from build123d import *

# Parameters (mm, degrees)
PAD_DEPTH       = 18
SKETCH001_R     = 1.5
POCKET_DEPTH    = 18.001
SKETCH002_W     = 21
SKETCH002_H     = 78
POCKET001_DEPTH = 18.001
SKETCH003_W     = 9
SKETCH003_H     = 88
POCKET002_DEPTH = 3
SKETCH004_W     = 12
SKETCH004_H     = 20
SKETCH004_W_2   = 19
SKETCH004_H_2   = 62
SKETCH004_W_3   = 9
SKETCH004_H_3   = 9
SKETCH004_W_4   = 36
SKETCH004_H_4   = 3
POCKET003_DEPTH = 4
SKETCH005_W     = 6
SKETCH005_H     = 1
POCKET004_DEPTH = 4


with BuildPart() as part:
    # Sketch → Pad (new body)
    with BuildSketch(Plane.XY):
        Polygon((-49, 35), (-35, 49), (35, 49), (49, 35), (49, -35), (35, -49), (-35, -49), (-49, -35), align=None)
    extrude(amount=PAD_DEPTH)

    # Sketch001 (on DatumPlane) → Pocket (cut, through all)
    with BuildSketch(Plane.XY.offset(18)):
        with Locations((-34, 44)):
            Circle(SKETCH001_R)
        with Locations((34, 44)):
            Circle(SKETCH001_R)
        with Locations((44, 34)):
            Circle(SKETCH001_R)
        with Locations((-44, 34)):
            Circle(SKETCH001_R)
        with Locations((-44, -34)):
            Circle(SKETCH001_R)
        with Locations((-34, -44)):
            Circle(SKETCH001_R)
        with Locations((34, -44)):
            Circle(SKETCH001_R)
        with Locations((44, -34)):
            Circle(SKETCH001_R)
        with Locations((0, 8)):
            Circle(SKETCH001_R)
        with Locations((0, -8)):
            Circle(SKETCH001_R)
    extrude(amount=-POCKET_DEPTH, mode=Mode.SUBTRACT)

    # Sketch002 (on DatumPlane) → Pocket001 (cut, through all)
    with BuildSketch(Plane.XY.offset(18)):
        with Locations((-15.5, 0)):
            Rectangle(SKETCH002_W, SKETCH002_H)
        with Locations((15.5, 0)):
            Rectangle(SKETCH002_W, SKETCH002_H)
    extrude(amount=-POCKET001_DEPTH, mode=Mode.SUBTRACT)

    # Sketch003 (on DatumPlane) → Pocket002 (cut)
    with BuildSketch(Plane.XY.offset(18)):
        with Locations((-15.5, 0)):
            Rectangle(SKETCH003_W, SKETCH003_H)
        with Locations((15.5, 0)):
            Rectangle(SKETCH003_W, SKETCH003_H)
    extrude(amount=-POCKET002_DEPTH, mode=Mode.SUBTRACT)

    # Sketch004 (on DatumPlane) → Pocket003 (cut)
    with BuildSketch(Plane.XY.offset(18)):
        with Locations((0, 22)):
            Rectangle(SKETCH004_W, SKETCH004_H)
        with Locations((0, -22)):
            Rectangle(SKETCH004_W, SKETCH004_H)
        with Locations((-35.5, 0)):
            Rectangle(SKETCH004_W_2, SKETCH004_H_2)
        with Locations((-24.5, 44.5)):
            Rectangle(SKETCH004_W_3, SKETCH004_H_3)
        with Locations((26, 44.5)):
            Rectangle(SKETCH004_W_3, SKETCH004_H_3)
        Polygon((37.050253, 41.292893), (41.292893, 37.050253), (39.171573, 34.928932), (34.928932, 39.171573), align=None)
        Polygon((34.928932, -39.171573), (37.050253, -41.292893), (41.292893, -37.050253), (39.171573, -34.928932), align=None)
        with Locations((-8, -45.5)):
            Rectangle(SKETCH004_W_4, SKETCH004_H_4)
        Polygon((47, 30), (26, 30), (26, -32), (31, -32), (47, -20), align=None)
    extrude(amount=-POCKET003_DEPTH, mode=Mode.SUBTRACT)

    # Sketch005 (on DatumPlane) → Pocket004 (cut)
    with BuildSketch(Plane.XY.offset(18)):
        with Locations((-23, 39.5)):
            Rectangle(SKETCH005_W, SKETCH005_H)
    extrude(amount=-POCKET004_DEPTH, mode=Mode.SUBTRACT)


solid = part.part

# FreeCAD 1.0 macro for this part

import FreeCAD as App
import Part
import Sketcher

V = App.Vector
Q = App.Units.Quantity


def add_polygon(sketch, points):
    """Adds a closed chain of lines whose ends are joined by coincident constraints."""
    first, n = sketch.GeometryCount, len(points)
    for a, b in zip(points, points[1:] + points[:1]):
        sketch.addGeometry(Part.LineSegment(App.Vector(*a, 0), App.Vector(*b, 0)), False)
    for i in range(n):
        sketch.addConstraint(Sketcher.Constraint("Coincident", first + i, 2, first + (i + 1) % n, 1))

doc = App.newDocument("Part")
params = doc.addObject("Spreadsheet::Sheet", "Params")
for row, (alias, value) in enumerate([
    ("sketch1_width", "70 mm"),
    ("pad1_length", "18 mm"),
    ("sketch2_diameter", "3 mm"),
    ("sketch3_width", "21 mm"),
    ("sketch3_height", "78 mm"),
    ("sketch4_width", "9 mm"),
    ("sketch4_height", "88 mm"),
    ("pocket3_length", "3 mm"),
    ("sketch5_width", "12 mm"),
    ("sketch5_width2", "19 mm"),
    ("sketch5_width3", "9 mm"),
    ("sketch5_width4", "36 mm"),
    ("sketch5_width5", "21 mm"),
    ("pocket4_length", "4 mm"),
    ("sketch6_width", "6 mm"),
    ("sketch6_height", "1 mm"),
    ("pocket5_length", "4 mm"),
], start=1):
    params.set(f"A{row}", alias)
    params.set(f"B{row}", "=" + value)
    params.setAlias(f"B{row}", alias)

body = doc.addObject("PartDesign::Body", "Body")

# Sketch on XY plane
sketch1 = doc.addObject("Sketcher::SketchObject", "Sketch")
body.addObject(sketch1)
sketch1.AttachmentSupport = (doc.XY_Plane, [""])
sketch1.MapMode = "FlatFace"
add_polygon(sketch1, [(-35, 49), (-49, 35), (-49, -35), (-35, -49), (35, -49), (49, -35), (49, 35), (35, 49)])  # lines 0-7
sketch1.addConstraint([
    Sketcher.Constraint("Vertical", 1),
    Sketcher.Constraint("Horizontal", 3),
    Sketcher.Constraint("Vertical", 5),
    Sketcher.Constraint("Horizontal", 7),
    Sketcher.Constraint("Symmetric", 0, 2, 4, 2, -1, 1),
    Sketcher.Constraint("Symmetric", 2, 2, 6, 2, -1, 1),
    Sketcher.Constraint("Perpendicular", 0, 2),
    Sketcher.Constraint("Perpendicular", 2, 4),
    Sketcher.Constraint("Perpendicular", 4, 6),
    Sketcher.Constraint("Horizontal", 1, 2, 4, 2),
    Sketcher.Constraint("Vertical", 3, 2, 6, 2),
    Sketcher.Constraint("Equal", 7, 1),
    Sketcher.Constraint("DistanceX", 3, 1, 3, 2, Q("70 mm")),
    Sketcher.Constraint("DistanceX", 0, 2, -1, 1, Q("49 mm")),
])
sketch1.setExpression("Constraints[20]", "Params.sketch1_width")
pad1 = doc.addObject("PartDesign::Pad", "Pad")
body.addObject(pad1)
pad1.Profile = sketch1
pad1.setExpression("Length", "Params.pad1_length")

# Sketch on XY plane
sketch2 = doc.addObject("Sketcher::SketchObject", "Sketch001")
body.addObject(sketch2)
sketch2.AttachmentSupport = (doc.XY_Plane, [""])
sketch2.MapMode = "FlatFace"
sketch2.AttachmentOffset = App.Placement(V(0, 0, 18), App.Rotation())
sketch2.addGeometry([
    Part.Circle(V(-34, 44, 0), V(0, 0, 1), 1.5),  # 0
    Part.Circle(V(34, 44, 0), V(0, 0, 1), 1.5),  # 1
    Part.Circle(V(44, 34, 0), V(0, 0, 1), 1.5),  # 2
    Part.Circle(V(-44, 34, 0), V(0, 0, 1), 1.5),  # 3
    Part.Circle(V(-44, -34, 0), V(0, 0, 1), 1.5),  # 4
    Part.Circle(V(-34, -44, 0), V(0, 0, 1), 1.5),  # 5
    Part.Circle(V(34, -44, 0), V(0, 0, 1), 1.5),  # 6
    Part.Circle(V(44, -34, 0), V(0, 0, 1), 1.5),  # 7
    Part.Circle(V(0, 8, 0), V(0, 0, 1), 1.5),  # 8
    Part.Circle(V(0, -8, 0), V(0, 0, 1), 1.5),  # 9
], False)
sketch2.addConstraint([
    Sketcher.Constraint("Equal", 0, 1),
    Sketcher.Constraint("Equal", 1, 2),
    Sketcher.Constraint("Equal", 2, 3),
    Sketcher.Constraint("Equal", 3, 4),
    Sketcher.Constraint("Equal", 4, 5),
    Sketcher.Constraint("Equal", 5, 6),
    Sketcher.Constraint("Equal", 6, 7),
    Sketcher.Constraint("Equal", 7, 8),
    Sketcher.Constraint("Equal", 8, 9),
    Sketcher.Constraint("Symmetric", 2, 3, 4, 3, -1, 1),
    Sketcher.Constraint("Symmetric", 1, 3, 5, 3, -1, 1),
    Sketcher.Constraint("Symmetric", 0, 3, 6, 3, -1, 1),
    Sketcher.Constraint("Symmetric", 3, 3, 7, 3, -1, 1),
    Sketcher.Constraint("Symmetric", 8, 3, 9, 3, -1, 1),
    Sketcher.Constraint("Symmetric", 0, 3, 1, 3, -2),
    Sketcher.Constraint("Symmetric", 2, 3, 3, 3, -2),
    Sketcher.Constraint("PointOnObject", 8, 3, -2),
    Sketcher.Constraint("Diameter", 0, Q("3 mm")),
    Sketcher.Constraint("DistanceX", 0, 3, -1, 1, Q("34 mm")),
    Sketcher.Constraint("DistanceY", -1, 1, 0, 3, Q("44 mm")),
    Sketcher.Constraint("DistanceX", -1, 1, 2, 3, Q("44 mm")),
    Sketcher.Constraint("DistanceY", -1, 1, 2, 3, Q("34 mm")),
    Sketcher.Constraint("DistanceY", -1, 1, 8, 3, Q("8 mm")),
])
sketch2.setExpression("Constraints[17]", "Params.sketch2_diameter")
pocket1 = doc.addObject("PartDesign::Pocket", "Pocket")
body.addObject(pocket1)
pocket1.Profile = sketch2
pocket1.Type = "ThroughAll"

# Sketch on XY plane
sketch3 = doc.addObject("Sketcher::SketchObject", "Sketch002")
body.addObject(sketch3)
sketch3.AttachmentSupport = (doc.XY_Plane, [""])
sketch3.MapMode = "FlatFace"
sketch3.AttachmentOffset = App.Placement(V(0, 0, 18), App.Rotation())
add_polygon(sketch3, [(-26, 39), (-26, -39), (-5, -39), (-5, 39)])  # lines 0-3
add_polygon(sketch3, [(5, 39), (5, -39), (26, -39), (26, 39)])  # lines 4-7
sketch3.addConstraint([
    Sketcher.Constraint("Vertical", 0),
    Sketcher.Constraint("Horizontal", 1),
    Sketcher.Constraint("Vertical", 2),
    Sketcher.Constraint("Horizontal", 3),
    Sketcher.Constraint("Vertical", 4),
    Sketcher.Constraint("Horizontal", 5),
    Sketcher.Constraint("Vertical", 6),
    Sketcher.Constraint("Horizontal", 7),
    Sketcher.Constraint("Symmetric", 2, 2, 4, 2, -1, 1),
    Sketcher.Constraint("Symmetric", 0, 2, 6, 2, -1, 1),
    Sketcher.Constraint("Horizontal", 1, 2, 4, 2),
    Sketcher.Constraint("DistanceX", 1, 1, 1, 2, Q("21 mm")),
    Sketcher.Constraint("DistanceY", 0, 2, 0, 1, Q("78 mm")),
    Sketcher.Constraint("DistanceX", 0, 2, -1, 1, Q("26 mm")),
])
sketch3.setExpression("Constraints[19]", "Params.sketch3_width")
sketch3.setExpression("Constraints[20]", "Params.sketch3_height")
pocket2 = doc.addObject("PartDesign::Pocket", "Pocket001")
body.addObject(pocket2)
pocket2.Profile = sketch3
pocket2.Type = "ThroughAll"

# Sketch on XY plane
sketch4 = doc.addObject("Sketcher::SketchObject", "Sketch003")
body.addObject(sketch4)
sketch4.AttachmentSupport = (doc.XY_Plane, [""])
sketch4.MapMode = "FlatFace"
sketch4.AttachmentOffset = App.Placement(V(0, 0, 18), App.Rotation())
add_polygon(sketch4, [(-20, 44), (-20, -44), (-11, -44), (-11, 44)])  # lines 0-3
add_polygon(sketch4, [(11, 44), (11, -44), (20, -44), (20, 44)])  # lines 4-7
sketch4.addConstraint([
    Sketcher.Constraint("Vertical", 0),
    Sketcher.Constraint("Horizontal", 1),
    Sketcher.Constraint("Vertical", 2),
    Sketcher.Constraint("Horizontal", 3),
    Sketcher.Constraint("Vertical", 4),
    Sketcher.Constraint("Horizontal", 5),
    Sketcher.Constraint("Vertical", 6),
    Sketcher.Constraint("Horizontal", 7),
    Sketcher.Constraint("Symmetric", 2, 2, 4, 2, -1, 1),
    Sketcher.Constraint("Symmetric", 0, 2, 6, 2, -1, 1),
    Sketcher.Constraint("Horizontal", 1, 2, 4, 2),
    Sketcher.Constraint("DistanceX", 1, 1, 1, 2, Q("9 mm")),
    Sketcher.Constraint("DistanceY", 0, 2, 0, 1, Q("88 mm")),
    Sketcher.Constraint("DistanceX", 0, 2, -1, 1, Q("20 mm")),
])
sketch4.setExpression("Constraints[19]", "Params.sketch4_width")
sketch4.setExpression("Constraints[20]", "Params.sketch4_height")
pocket3 = doc.addObject("PartDesign::Pocket", "Pocket002")
body.addObject(pocket3)
pocket3.Profile = sketch4
pocket3.setExpression("Length", "Params.pocket3_length")

# Sketch on XY plane
sketch5 = doc.addObject("Sketcher::SketchObject", "Sketch004")
body.addObject(sketch5)
sketch5.AttachmentSupport = (doc.XY_Plane, [""])
sketch5.MapMode = "FlatFace"
sketch5.AttachmentOffset = App.Placement(V(0, 0, 18), App.Rotation())
add_polygon(sketch5, [(-6, 32), (-6, 12), (6, 12), (6, 32)])  # lines 0-3
add_polygon(sketch5, [(-6, -12), (-6, -32), (6, -32), (6, -12)])  # lines 4-7
add_polygon(sketch5, [(-45, 31), (-45, -31), (-26, -31), (-26, 31)])  # lines 8-11
add_polygon(sketch5, [(-29, 49), (-29, 40), (-20, 40), (-20, 49)])  # lines 12-15
add_polygon(sketch5, [(21.5, 49), (21.5, 40), (30.5, 40), (30.5, 49)])  # lines 16-19
add_polygon(sketch5, [(41.292893, 37.050253), (37.050253, 41.292893), (34.928932, 39.171573), (39.171573, 34.928932)])  # lines 20-23
add_polygon(sketch5, [(34.928932, -39.171573), (37.050253, -41.292893), (41.292893, -37.050253), (39.171573, -34.928932)])  # lines 24-27
add_polygon(sketch5, [(-26, -44), (-26, -47), (10, -47), (10, -44)])  # lines 28-31
add_polygon(sketch5, [(47, 30), (26, 30), (26, -32), (31, -32), (47, -20)])  # lines 32-36
sketch5.addConstraint([
    Sketcher.Constraint("Vertical", 0),
    Sketcher.Constraint("Horizontal", 1),
    Sketcher.Constraint("Vertical", 2),
    Sketcher.Constraint("Horizontal", 3),
    Sketcher.Constraint("Vertical", 4),
    Sketcher.Constraint("Horizontal", 5),
    Sketcher.Constraint("Vertical", 6),
    Sketcher.Constraint("Horizontal", 7),
    Sketcher.Constraint("Vertical", 8),
    Sketcher.Constraint("Horizontal", 9),
    Sketcher.Constraint("Vertical", 10),
    Sketcher.Constraint("Horizontal", 11),
    Sketcher.Constraint("Vertical", 12),
    Sketcher.Constraint("Horizontal", 13),
    Sketcher.Constraint("Vertical", 14),
    Sketcher.Constraint("Horizontal", 15),
    Sketcher.Constraint("Vertical", 16),
    Sketcher.Constraint("Horizontal", 17),
    Sketcher.Constraint("Vertical", 18),
    Sketcher.Constraint("Horizontal", 19),
    Sketcher.Constraint("Vertical", 28),
    Sketcher.Constraint("Horizontal", 29),
    Sketcher.Constraint("Vertical", 30),
    Sketcher.Constraint("Horizontal", 31),
    Sketcher.Constraint("Horizontal", 32),
    Sketcher.Constraint("Vertical", 33),
    Sketcher.Constraint("Horizontal", 34),
    Sketcher.Constraint("Vertical", 36),
    Sketcher.Constraint("Symmetric", 2, 2, 4, 2, -1, 1),
    Sketcher.Constraint("Symmetric", 0, 2, 6, 2, -1, 1),
    Sketcher.Constraint("Symmetric", 20, 2, 24, 2, -1),
    Sketcher.Constraint("Symmetric", 23, 2, 25, 2, -1),
    Sketcher.Constraint("Symmetric", 22, 2, 26, 2, -1),
    Sketcher.Constraint("Symmetric", 21, 2, 27, 2, -1),
    Sketcher.Constraint("Perpendicular", 20, 21),
    Sketcher.Constraint("Perpendicular", 21, 22),
    Sketcher.Constraint("Perpendicular", 22, 23),
    Sketcher.Constraint("Perpendicular", 23, 24),
    Sketcher.Constraint("Horizontal", 13, 2, 16, 2),
    Sketcher.Constraint("Horizontal", 15, 2, 18, 2),
    Sketcher.Constraint("Horizontal", 5, 2, 33, 2),
    Sketcher.Constraint("Vertical", 3, 2, 4, 2),
    Sketcher.Constraint("Vertical", 10, 2, 28, 2),
    Sketcher.Constraint("Equal", 15, 17),
    Sketcher.Constraint("Equal", 19, 12),
    Sketcher.Constraint("Equal", 10, 33),
    Sketcher.Constraint("DistanceX", 1, 1, 1, 2, Q("12 mm")),
    Sketcher.Constraint("DistanceX", 9, 1, 9, 2, Q("19 mm")),
    Sketcher.Constraint("DistanceX", 13, 1, 13, 2, Q("9 mm")),
    Sketcher.Constraint("DistanceX", 29, 1, 29, 2, Q("36 mm")),
    Sketcher.Constraint("DistanceX", 32, 2, 32, 1, Q("21 mm")),
    Sketcher.Constraint("DistanceX", 34, 1, 34, 2, Q("5 mm")),
    Sketcher.Constraint("DistanceY", 0, 2, 0, 1, Q("20 mm")),
    Sketcher.Constraint("DistanceY", 8, 2, 8, 1, Q("62 mm")),
    Sketcher.Constraint("DistanceY", 28, 2, 28, 1, Q("3 mm")),
    Sketcher.Constraint("DistanceY", 36, 1, 36, 2, Q("50 mm")),
    Sketcher.Constraint("Distance", 20, Q("5.999999 mm")),
    Sketcher.Constraint("Distance", 21, Q("3 mm")),
    Sketcher.Constraint("DistanceY", -1, 1, 0, 2, Q("12 mm")),
    Sketcher.Constraint("DistanceX", 8, 2, -1, 1, Q("45 mm")),
    Sketcher.Constraint("DistanceY", 8, 2, -1, 1, Q("31 mm")),
    Sketcher.Constraint("DistanceX", 12, 2, -1, 1, Q("29 mm")),
    Sketcher.Constraint("DistanceY", -1, 1, 12, 2, Q("40 mm")),
    Sketcher.Constraint("DistanceY", 28, 2, -1, 1, Q("47 mm")),
    Sketcher.Constraint("DistanceX", -1, 1, 32, 2, Q("26 mm")),
    Sketcher.Constraint("DistanceX", -1, 1, 16, 2, Q("21.5 mm")),
    Sketcher.Constraint("DistanceX", -1, 1, 20, 2, Q("37.050253 mm")),
    Sketcher.Constraint("DistanceY", -1, 1, 20, 2, Q("41.292893 mm")),
])
sketch5.setExpression("Constraints[83]", "Params.sketch5_width")
sketch5.setExpression("Constraints[84]", "Params.sketch5_width2")
sketch5.setExpression("Constraints[85]", "Params.sketch5_width3")
sketch5.setExpression("Constraints[86]", "Params.sketch5_width4")
sketch5.setExpression("Constraints[87]", "Params.sketch5_width5")
pocket4 = doc.addObject("PartDesign::Pocket", "Pocket003")
body.addObject(pocket4)
pocket4.Profile = sketch5
pocket4.setExpression("Length", "Params.pocket4_length")

# Sketch on XY plane
sketch6 = doc.addObject("Sketcher::SketchObject", "Sketch005")
body.addObject(sketch6)
sketch6.AttachmentSupport = (doc.XY_Plane, [""])
sketch6.MapMode = "FlatFace"
sketch6.AttachmentOffset = App.Placement(V(0, 0, 18), App.Rotation())
add_polygon(sketch6, [(-26, 40), (-26, 39), (-20, 39), (-20, 40)])  # lines 0-3
sketch6.addConstraint([
    Sketcher.Constraint("Vertical", 0),
    Sketcher.Constraint("Horizontal", 1),
    Sketcher.Constraint("Vertical", 2),
    Sketcher.Constraint("Horizontal", 3),
    Sketcher.Constraint("DistanceX", 1, 1, 1, 2, Q("6 mm")),
    Sketcher.Constraint("DistanceY", 0, 2, 0, 1, Q("1 mm")),
    Sketcher.Constraint("DistanceX", 0, 2, -1, 1, Q("26 mm")),
    Sketcher.Constraint("DistanceY", -1, 1, 0, 2, Q("39 mm")),
])
sketch6.setExpression("Constraints[8]", "Params.sketch6_width")
sketch6.setExpression("Constraints[9]", "Params.sketch6_height")
pocket5 = doc.addObject("PartDesign::Pocket", "Pocket004")
body.addObject(pocket5)
pocket5.Profile = sketch6
pocket5.setExpression("Length", "Params.pocket5_length")

doc.recompute()
